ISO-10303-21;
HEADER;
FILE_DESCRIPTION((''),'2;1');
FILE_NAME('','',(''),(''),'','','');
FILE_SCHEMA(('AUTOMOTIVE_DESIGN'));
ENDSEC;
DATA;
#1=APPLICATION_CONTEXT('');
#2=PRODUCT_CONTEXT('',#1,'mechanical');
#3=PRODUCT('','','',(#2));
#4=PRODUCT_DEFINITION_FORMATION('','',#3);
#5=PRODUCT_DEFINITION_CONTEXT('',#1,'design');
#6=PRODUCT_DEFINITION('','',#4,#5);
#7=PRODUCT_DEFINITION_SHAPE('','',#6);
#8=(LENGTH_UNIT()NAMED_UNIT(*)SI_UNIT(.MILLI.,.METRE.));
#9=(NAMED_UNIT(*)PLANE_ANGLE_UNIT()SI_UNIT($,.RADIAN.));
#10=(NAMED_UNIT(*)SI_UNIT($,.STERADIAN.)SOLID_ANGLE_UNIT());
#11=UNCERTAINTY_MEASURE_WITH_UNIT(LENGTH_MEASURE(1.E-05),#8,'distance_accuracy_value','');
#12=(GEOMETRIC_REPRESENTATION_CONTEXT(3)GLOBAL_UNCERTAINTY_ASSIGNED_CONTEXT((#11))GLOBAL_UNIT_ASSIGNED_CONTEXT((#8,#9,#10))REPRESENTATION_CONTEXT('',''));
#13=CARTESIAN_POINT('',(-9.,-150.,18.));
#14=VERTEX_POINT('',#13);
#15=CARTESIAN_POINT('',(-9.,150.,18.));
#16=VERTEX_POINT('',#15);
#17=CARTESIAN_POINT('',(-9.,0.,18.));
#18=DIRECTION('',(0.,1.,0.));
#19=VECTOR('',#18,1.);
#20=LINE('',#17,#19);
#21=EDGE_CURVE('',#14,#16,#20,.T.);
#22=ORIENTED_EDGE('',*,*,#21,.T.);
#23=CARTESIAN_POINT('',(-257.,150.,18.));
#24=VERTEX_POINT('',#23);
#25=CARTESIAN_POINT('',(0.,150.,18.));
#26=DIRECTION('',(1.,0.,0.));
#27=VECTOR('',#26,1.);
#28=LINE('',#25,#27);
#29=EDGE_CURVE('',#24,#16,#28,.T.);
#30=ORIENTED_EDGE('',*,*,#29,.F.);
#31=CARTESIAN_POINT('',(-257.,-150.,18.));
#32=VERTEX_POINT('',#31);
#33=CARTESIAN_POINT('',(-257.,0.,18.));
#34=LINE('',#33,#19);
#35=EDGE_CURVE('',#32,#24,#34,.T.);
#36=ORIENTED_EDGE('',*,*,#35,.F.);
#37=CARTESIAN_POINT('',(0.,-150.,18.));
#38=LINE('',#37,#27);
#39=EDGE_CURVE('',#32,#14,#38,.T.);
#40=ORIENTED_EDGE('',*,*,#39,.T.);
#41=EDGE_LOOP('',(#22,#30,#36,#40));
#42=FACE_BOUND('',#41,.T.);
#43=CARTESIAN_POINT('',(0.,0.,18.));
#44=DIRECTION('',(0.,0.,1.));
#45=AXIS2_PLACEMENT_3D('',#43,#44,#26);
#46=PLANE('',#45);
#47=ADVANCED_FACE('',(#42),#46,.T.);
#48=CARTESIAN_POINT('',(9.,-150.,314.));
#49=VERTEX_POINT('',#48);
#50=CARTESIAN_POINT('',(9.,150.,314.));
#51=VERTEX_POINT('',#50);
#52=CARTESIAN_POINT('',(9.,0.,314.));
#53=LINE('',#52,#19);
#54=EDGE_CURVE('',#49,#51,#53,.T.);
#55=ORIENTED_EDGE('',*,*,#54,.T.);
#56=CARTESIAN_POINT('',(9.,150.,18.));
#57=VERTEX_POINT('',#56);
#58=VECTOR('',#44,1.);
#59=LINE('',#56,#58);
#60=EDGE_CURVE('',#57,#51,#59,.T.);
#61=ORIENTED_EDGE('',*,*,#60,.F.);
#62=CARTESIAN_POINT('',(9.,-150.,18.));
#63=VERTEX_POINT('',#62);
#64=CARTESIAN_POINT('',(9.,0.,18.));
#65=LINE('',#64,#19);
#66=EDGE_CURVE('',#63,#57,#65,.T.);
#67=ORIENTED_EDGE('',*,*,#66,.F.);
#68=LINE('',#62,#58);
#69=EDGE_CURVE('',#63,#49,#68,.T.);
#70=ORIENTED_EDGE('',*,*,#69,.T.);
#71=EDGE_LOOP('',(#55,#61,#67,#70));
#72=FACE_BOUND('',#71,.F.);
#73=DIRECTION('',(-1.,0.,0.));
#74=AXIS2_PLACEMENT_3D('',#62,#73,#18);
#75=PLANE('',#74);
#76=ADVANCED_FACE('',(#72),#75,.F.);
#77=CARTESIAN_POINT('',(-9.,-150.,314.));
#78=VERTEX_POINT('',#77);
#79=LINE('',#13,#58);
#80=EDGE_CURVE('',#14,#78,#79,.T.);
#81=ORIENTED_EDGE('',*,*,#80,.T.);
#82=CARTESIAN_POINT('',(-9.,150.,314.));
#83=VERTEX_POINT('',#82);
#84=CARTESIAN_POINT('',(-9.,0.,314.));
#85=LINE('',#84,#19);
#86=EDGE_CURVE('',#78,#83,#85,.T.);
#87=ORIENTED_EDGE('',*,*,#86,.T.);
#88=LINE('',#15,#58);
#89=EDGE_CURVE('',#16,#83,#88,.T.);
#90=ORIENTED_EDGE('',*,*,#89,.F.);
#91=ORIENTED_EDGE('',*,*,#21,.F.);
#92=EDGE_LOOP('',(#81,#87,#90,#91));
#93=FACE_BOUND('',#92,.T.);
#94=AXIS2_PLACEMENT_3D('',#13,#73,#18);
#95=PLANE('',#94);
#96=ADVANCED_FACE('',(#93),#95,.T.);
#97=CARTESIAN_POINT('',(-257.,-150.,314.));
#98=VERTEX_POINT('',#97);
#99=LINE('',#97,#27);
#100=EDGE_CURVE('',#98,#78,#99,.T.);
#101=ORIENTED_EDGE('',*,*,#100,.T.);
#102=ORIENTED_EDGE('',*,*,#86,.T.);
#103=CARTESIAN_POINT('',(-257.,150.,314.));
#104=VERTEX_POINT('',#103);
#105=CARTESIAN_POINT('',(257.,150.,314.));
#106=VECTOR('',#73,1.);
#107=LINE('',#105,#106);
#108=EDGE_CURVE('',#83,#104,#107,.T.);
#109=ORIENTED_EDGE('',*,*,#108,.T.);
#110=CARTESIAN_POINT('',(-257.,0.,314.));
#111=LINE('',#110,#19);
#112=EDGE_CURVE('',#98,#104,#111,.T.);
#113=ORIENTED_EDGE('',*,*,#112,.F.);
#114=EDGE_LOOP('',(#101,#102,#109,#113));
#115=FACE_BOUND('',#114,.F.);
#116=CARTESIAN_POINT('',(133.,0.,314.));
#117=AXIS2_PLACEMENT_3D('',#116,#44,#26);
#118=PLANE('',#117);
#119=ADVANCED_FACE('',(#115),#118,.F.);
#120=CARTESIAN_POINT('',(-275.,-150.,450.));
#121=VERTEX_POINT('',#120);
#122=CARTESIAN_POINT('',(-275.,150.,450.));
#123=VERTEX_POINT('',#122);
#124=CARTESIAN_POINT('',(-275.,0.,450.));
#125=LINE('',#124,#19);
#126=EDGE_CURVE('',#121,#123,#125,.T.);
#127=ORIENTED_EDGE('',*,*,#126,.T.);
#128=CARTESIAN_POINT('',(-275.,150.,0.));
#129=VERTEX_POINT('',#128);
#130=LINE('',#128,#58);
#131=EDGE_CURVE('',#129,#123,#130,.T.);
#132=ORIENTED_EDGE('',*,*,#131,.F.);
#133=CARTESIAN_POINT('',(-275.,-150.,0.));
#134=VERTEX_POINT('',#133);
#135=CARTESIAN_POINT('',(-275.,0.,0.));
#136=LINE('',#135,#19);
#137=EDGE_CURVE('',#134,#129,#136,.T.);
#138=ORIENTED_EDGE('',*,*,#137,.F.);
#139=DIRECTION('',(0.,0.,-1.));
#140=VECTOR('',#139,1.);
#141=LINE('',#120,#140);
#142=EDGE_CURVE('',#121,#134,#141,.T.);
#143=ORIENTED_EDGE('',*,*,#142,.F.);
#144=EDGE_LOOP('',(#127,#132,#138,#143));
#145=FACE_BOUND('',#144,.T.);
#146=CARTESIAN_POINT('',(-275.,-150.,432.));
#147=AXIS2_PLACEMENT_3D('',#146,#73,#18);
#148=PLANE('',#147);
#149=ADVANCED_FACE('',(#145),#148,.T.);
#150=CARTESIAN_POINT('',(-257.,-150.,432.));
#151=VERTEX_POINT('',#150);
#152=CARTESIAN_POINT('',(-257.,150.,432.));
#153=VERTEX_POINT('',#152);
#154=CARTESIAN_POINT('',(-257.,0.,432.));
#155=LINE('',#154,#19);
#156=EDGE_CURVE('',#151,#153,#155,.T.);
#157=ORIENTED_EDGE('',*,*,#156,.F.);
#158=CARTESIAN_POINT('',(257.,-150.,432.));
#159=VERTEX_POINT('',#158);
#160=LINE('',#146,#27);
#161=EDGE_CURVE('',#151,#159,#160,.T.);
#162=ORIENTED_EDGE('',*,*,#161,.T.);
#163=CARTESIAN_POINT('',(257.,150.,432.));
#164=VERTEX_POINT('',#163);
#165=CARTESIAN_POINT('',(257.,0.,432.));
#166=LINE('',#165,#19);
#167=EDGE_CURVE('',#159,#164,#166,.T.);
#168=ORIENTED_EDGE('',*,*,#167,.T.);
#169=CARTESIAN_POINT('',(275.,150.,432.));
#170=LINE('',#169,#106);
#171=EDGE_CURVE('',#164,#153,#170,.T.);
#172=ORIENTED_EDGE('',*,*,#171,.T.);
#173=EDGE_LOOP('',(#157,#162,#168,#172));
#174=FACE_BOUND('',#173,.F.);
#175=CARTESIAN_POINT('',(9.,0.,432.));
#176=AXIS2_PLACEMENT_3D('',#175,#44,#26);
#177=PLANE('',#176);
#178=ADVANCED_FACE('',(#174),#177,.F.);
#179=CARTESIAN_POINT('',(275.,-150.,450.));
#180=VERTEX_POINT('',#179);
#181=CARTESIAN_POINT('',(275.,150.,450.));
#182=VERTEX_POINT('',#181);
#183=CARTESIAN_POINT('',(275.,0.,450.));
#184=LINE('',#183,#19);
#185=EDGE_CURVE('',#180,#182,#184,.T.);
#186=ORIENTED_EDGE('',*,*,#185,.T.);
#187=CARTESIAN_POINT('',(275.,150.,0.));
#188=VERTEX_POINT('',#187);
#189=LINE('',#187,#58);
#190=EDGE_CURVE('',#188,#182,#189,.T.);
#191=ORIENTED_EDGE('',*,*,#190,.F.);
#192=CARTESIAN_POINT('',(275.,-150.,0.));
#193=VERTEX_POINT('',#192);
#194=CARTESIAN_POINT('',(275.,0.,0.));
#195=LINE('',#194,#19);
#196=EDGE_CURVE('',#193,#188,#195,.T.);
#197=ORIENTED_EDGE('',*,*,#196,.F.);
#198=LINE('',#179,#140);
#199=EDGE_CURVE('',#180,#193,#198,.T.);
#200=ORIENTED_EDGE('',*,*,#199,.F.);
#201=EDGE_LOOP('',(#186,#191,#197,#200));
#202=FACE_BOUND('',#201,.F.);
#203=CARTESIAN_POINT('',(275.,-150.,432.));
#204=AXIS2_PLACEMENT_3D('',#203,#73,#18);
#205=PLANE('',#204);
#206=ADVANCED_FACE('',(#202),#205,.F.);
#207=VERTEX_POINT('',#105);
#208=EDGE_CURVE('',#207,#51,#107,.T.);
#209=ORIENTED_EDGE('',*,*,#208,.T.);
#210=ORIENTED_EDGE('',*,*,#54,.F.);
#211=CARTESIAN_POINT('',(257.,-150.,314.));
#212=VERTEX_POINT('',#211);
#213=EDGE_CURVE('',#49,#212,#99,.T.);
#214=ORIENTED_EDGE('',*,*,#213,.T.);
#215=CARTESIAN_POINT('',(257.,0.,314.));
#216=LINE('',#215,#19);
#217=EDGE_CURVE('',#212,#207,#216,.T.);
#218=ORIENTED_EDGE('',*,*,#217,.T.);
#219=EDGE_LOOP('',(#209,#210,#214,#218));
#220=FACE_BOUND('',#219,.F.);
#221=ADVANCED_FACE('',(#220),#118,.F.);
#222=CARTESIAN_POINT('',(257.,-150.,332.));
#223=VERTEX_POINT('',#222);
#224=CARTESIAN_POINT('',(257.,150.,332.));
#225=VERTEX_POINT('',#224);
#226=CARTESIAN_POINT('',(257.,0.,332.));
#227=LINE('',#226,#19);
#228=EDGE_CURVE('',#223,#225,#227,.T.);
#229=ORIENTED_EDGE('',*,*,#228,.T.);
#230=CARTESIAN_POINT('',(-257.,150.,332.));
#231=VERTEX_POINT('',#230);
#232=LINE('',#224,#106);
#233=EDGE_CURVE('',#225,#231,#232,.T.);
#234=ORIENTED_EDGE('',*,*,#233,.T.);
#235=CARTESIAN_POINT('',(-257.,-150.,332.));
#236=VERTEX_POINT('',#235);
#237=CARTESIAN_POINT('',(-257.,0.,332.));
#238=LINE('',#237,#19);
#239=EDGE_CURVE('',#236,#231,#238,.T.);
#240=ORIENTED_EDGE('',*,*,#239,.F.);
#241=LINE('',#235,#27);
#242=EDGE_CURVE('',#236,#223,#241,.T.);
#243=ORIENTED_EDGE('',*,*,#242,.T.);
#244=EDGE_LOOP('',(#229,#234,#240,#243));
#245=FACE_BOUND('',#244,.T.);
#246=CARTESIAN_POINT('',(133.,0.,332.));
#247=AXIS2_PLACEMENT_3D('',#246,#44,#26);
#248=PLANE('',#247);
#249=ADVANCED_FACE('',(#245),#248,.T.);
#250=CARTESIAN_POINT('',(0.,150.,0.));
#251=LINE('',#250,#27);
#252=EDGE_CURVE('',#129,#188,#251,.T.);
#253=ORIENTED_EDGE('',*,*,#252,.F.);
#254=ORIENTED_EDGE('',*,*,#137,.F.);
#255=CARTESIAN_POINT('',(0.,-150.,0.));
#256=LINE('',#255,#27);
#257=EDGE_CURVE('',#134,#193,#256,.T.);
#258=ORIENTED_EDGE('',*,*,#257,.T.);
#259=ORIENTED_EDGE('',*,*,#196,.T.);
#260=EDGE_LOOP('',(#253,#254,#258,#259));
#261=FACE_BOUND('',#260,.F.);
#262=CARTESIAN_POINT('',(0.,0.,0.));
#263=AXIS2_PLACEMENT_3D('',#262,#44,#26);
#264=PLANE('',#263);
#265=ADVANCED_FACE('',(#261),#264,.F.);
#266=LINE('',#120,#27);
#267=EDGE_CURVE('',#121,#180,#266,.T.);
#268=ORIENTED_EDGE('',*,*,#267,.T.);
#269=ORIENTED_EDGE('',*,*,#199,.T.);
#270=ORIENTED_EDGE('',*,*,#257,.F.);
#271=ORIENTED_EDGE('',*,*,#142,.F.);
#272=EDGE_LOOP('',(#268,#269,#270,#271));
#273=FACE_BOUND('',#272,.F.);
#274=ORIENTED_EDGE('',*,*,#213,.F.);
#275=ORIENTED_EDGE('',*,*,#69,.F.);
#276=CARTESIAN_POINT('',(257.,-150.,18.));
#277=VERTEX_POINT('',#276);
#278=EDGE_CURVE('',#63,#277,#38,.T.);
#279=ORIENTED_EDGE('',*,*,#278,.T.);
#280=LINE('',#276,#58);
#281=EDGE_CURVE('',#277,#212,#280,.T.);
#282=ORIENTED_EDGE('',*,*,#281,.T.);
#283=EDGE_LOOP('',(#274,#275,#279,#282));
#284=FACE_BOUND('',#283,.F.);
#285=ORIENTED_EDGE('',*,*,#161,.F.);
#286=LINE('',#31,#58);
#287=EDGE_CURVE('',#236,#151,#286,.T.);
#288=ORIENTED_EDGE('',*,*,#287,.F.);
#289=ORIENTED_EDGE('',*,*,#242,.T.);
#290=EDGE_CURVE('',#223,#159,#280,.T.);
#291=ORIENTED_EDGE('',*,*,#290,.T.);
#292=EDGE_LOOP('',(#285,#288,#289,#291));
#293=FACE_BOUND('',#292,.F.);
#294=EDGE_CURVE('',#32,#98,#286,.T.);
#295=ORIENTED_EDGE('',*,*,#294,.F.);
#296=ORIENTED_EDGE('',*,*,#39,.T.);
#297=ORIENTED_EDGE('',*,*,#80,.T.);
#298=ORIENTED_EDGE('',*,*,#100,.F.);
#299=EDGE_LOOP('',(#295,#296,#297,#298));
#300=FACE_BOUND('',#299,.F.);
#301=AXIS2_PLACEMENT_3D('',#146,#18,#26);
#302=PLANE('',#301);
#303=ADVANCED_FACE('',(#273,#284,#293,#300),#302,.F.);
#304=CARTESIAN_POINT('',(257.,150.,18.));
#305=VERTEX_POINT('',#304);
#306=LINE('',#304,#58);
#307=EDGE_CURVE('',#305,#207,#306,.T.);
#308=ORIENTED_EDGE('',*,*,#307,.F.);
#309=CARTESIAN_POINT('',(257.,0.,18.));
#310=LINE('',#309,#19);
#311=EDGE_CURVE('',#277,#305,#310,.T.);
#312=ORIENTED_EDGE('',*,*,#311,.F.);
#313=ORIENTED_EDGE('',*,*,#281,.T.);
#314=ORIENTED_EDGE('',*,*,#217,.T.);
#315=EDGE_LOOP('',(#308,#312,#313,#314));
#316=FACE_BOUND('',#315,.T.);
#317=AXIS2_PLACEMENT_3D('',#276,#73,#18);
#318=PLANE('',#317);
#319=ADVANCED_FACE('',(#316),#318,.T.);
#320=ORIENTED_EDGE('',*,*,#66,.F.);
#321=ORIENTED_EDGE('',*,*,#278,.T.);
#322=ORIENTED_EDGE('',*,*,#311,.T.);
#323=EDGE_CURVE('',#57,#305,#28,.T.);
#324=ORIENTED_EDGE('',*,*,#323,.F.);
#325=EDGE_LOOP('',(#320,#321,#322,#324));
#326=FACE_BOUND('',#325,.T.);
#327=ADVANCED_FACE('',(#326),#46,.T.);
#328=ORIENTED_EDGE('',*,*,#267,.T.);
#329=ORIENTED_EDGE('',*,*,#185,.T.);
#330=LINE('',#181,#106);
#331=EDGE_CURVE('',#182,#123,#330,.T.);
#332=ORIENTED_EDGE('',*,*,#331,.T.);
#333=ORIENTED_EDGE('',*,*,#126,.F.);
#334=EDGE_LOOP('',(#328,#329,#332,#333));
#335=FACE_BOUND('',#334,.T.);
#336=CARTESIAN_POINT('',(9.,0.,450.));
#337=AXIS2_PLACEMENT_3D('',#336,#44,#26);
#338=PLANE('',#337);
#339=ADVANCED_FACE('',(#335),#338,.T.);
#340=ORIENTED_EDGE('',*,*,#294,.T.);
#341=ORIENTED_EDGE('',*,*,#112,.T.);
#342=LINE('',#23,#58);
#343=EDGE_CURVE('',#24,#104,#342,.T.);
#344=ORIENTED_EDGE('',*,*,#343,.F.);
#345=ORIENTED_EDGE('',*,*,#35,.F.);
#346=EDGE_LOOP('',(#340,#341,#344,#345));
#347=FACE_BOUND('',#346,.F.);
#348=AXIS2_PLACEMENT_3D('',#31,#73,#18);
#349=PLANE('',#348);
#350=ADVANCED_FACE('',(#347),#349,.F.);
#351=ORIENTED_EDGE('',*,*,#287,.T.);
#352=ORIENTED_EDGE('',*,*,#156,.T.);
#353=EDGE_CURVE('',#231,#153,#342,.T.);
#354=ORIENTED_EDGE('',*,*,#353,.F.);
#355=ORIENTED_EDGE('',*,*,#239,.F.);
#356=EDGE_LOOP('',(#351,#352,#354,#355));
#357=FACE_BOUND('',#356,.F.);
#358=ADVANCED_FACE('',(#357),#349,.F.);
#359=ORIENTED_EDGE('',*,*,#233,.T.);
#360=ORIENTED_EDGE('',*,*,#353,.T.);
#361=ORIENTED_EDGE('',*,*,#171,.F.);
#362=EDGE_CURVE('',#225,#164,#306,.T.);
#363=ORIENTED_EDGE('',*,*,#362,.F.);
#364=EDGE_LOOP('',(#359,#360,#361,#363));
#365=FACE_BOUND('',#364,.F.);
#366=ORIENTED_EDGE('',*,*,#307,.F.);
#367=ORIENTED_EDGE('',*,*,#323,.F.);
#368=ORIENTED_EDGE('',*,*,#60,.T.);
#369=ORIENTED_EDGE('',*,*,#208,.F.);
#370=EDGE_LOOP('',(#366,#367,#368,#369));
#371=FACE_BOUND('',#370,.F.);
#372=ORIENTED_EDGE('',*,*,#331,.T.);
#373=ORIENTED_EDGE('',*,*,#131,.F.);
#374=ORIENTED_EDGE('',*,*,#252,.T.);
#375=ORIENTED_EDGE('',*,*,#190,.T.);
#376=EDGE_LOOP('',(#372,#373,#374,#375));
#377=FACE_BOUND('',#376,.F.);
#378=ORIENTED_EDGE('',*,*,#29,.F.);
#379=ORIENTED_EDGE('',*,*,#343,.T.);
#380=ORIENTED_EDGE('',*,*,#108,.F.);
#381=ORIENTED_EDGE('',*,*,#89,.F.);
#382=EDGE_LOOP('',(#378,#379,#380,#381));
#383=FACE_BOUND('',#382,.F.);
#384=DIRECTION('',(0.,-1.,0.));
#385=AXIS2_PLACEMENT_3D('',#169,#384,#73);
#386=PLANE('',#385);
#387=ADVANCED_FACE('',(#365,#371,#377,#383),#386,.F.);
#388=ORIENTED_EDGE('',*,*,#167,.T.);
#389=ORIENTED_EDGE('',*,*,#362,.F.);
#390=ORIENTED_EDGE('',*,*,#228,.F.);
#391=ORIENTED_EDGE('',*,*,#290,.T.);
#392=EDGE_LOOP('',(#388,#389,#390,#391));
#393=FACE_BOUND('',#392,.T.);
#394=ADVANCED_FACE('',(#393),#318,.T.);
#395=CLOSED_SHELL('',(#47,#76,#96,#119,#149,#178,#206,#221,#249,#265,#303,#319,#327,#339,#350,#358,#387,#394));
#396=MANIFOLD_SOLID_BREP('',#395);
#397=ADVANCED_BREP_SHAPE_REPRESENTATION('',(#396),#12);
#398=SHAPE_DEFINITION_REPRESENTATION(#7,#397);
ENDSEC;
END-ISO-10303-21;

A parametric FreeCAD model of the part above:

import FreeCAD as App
import Part
import Sketcher

doc = App.newDocument("Part")
params = doc.addObject("Spreadsheet::Sheet", "Params")
for row, (alias, value) in enumerate([
    ("sketch1_width", "550 mm"),
    ("sketch1_height", "300 mm"),
    ("pad1_length", "18 mm"),
    ("sketch2_width", "18 mm"),
    ("sketch2_height", "300 mm"),
    ("pad2_length", "414 mm"),
    ("sketch3_width", "18 mm"),
    ("sketch3_height", "300 mm"),
    ("pad3_length", "296 mm"),
    ("sketch4_width", "514 mm"),
    ("sketch4_height", "300 mm"),
    ("pad4_length", "18 mm"),
    ("sketch5_width", "550 mm"),
    ("sketch5_height", "300 mm"),
    ("pad5_length", "18 mm"),
], start=1):
    params.set(f"A{row}", alias)
    params.set(f"B{row}", "=" + value)
    params.setAlias(f"B{row}", alias)

body = doc.addObject("PartDesign::Body", "Body")

sketch1 = body.newObject("Sketcher::SketchObject", "Sketch")
sketch1.AttachmentSupport = (doc.getObject("XY_Plane"), [""])
sketch1.MapMode = "FlatFace"
sketch1.addGeometry([
    Part.LineSegment(App.Vector(-275, 150, 0), App.Vector(-275, -150, 0)),
    Part.LineSegment(App.Vector(-275, -150, 0), App.Vector(275, -150, 0)),
    Part.LineSegment(App.Vector(275, -150, 0), App.Vector(275, 150, 0)),
    Part.LineSegment(App.Vector(275, 150, 0), App.Vector(-275, 150, 0)),
], False)
sketch1.addConstraint([
    Sketcher.Constraint("Coincident", 0, 2, 1, 1),
    Sketcher.Constraint("Coincident", 1, 2, 2, 1),
    Sketcher.Constraint("Coincident", 2, 2, 3, 1),
    Sketcher.Constraint("Coincident", 3, 2, 0, 1),
    Sketcher.Constraint("Vertical", 0),
    Sketcher.Constraint("Horizontal", 1),
    Sketcher.Constraint("Vertical", 2),
    Sketcher.Constraint("Horizontal", 3),
    Sketcher.Constraint("Symmetric", 0, 2, 2, 2, -1, 1),
    Sketcher.Constraint("DistanceX", 1, 1, 1, 2, 550.0),
    Sketcher.Constraint("DistanceY", 0, 2, 0, 1, 300.0),
])
sketch1.setExpression("Constraints[9]", "Params.sketch1_width")
sketch1.setExpression("Constraints[10]", "Params.sketch1_height")
pad1 = body.newObject("PartDesign::Pad", "Pad")
pad1.Profile = sketch1
pad1.setExpression("Length", "Params.pad1_length")

sketch2 = body.newObject("Sketcher::SketchObject", "Sketch001")
sketch2.AttachmentSupport = (doc.getObject("XY_Plane"), [""])
sketch2.MapMode = "FlatFace"
sketch2.AttachmentOffset = App.Placement(App.Vector(0, 0, 18), App.Rotation())
sketch2.addGeometry([
    Part.LineSegment(App.Vector(-275, 150, 0), App.Vector(-275, -150, 0)),
    Part.LineSegment(App.Vector(-275, -150, 0), App.Vector(-257, -150, 0)),
    Part.LineSegment(App.Vector(-257, -150, 0), App.Vector(-257, 150, 0)),
    Part.LineSegment(App.Vector(-257, 150, 0), App.Vector(-275, 150, 0)),
    Part.LineSegment(App.Vector(257, 150, 0), App.Vector(257, -150, 0)),
    Part.LineSegment(App.Vector(257, -150, 0), App.Vector(275, -150, 0)),
    Part.LineSegment(App.Vector(275, -150, 0), App.Vector(275, 150, 0)),
    Part.LineSegment(App.Vector(275, 150, 0), App.Vector(257, 150, 0)),
], False)
sketch2.addConstraint([
    Sketcher.Constraint("Coincident", 0, 2, 1, 1),
    Sketcher.Constraint("Coincident", 1, 2, 2, 1),
    Sketcher.Constraint("Coincident", 2, 2, 3, 1),
    Sketcher.Constraint("Coincident", 3, 2, 0, 1),
    Sketcher.Constraint("Coincident", 4, 2, 5, 1),
    Sketcher.Constraint("Coincident", 5, 2, 6, 1),
    Sketcher.Constraint("Coincident", 6, 2, 7, 1),
    Sketcher.Constraint("Coincident", 7, 2, 4, 1),
    Sketcher.Constraint("Vertical", 0),
    Sketcher.Constraint("Horizontal", 1),
    Sketcher.Constraint("Vertical", 2),
    Sketcher.Constraint("Horizontal", 3),
    Sketcher.Constraint("Vertical", 4),
    Sketcher.Constraint("Horizontal", 5),
    Sketcher.Constraint("Vertical", 6),
    Sketcher.Constraint("Horizontal", 7),
    Sketcher.Constraint("Symmetric", 2, 2, 4, 2, -1, 1),
    Sketcher.Constraint("Symmetric", 0, 2, 6, 2, -1, 1),
    Sketcher.Constraint("Horizontal", 1, 2, 4, 2),
    Sketcher.Constraint("DistanceX", 1, 1, 1, 2, 18.0),
    Sketcher.Constraint("DistanceY", 0, 2, 0, 1, 300.0),
    Sketcher.Constraint("DistanceX", 0, 2, -1, 1, 275.0),
])
sketch2.setExpression("Constraints[19]", "Params.sketch2_width")
sketch2.setExpression("Constraints[20]", "Params.sketch2_height")
pad2 = body.newObject("PartDesign::Pad", "Pad001")
pad2.Profile = sketch2
pad2.setExpression("Length", "Params.pad2_length")

sketch3 = body.newObject("Sketcher::SketchObject", "Sketch002")
sketch3.AttachmentSupport = (doc.getObject("XY_Plane"), [""])
sketch3.MapMode = "FlatFace"
sketch3.AttachmentOffset = App.Placement(App.Vector(0, 0, 18), App.Rotation())
sketch3.addGeometry([
    Part.LineSegment(App.Vector(-9, 150, 0), App.Vector(-9, -150, 0)),
    Part.LineSegment(App.Vector(-9, -150, 0), App.Vector(9, -150, 0)),
    Part.LineSegment(App.Vector(9, -150, 0), App.Vector(9, 150, 0)),
    Part.LineSegment(App.Vector(9, 150, 0), App.Vector(-9, 150, 0)),
], False)
sketch3.addConstraint([
    Sketcher.Constraint("Coincident", 0, 2, 1, 1),
    Sketcher.Constraint("Coincident", 1, 2, 2, 1),
    Sketcher.Constraint("Coincident", 2, 2, 3, 1),
    Sketcher.Constraint("Coincident", 3, 2, 0, 1),
    Sketcher.Constraint("Vertical", 0),
    Sketcher.Constraint("Horizontal", 1),
    Sketcher.Constraint("Vertical", 2),
    Sketcher.Constraint("Horizontal", 3),
    Sketcher.Constraint("Symmetric", 0, 2, 2, 2, -1, 1),
    Sketcher.Constraint("DistanceX", 1, 1, 1, 2, 18.0),
    Sketcher.Constraint("DistanceY", 0, 2, 0, 1, 300.0),
])
sketch3.setExpression("Constraints[9]", "Params.sketch3_width")
sketch3.setExpression("Constraints[10]", "Params.sketch3_height")
pad3 = body.newObject("PartDesign::Pad", "Pad002")
pad3.Profile = sketch3
pad3.setExpression("Length", "Params.pad3_length")

sketch4 = body.newObject("Sketcher::SketchObject", "Sketch003")
sketch4.AttachmentSupport = (doc.getObject("XY_Plane"), [""])
sketch4.MapMode = "FlatFace"
sketch4.AttachmentOffset = App.Placement(App.Vector(0, 0, 314), App.Rotation())
sketch4.addGeometry([
    Part.LineSegment(App.Vector(257, -150, 0), App.Vector(257, 150, 0)),
    Part.LineSegment(App.Vector(257, 150, 0), App.Vector(-257, 150, 0)),
    Part.LineSegment(App.Vector(-257, 150, 0), App.Vector(-257, -150, 0)),
    Part.LineSegment(App.Vector(-257, -150, 0), App.Vector(257, -150, 0)),
], False)
sketch4.addConstraint([
    Sketcher.Constraint("Coincident", 0, 2, 1, 1),
    Sketcher.Constraint("Coincident", 1, 2, 2, 1),
    Sketcher.Constraint("Coincident", 2, 2, 3, 1),
    Sketcher.Constraint("Coincident", 3, 2, 0, 1),
    Sketcher.Constraint("Vertical", 0),
    Sketcher.Constraint("Horizontal", 1),
    Sketcher.Constraint("Vertical", 2),
    Sketcher.Constraint("Horizontal", 3),
    Sketcher.Constraint("Symmetric", 0, 2, 2, 2, -1, 1),
    Sketcher.Constraint("DistanceX", 1, 2, 1, 1, 514.0),
    Sketcher.Constraint("DistanceY", 0, 1, 0, 2, 300.0),
])
sketch4.setExpression("Constraints[9]", "Params.sketch4_width")
sketch4.setExpression("Constraints[10]", "Params.sketch4_height")
pad4 = body.newObject("PartDesign::Pad", "Pad003")
pad4.Profile = sketch4
pad4.setExpression("Length", "Params.pad4_length")

sketch5 = body.newObject("Sketcher::SketchObject", "Sketch004")
sketch5.AttachmentSupport = (doc.getObject("XY_Plane"), [""])
sketch5.MapMode = "FlatFace"
sketch5.AttachmentOffset = App.Placement(App.Vector(0, 0, 432), App.Rotation())
sketch5.addGeometry([
    Part.LineSegment(App.Vector(275, -150, 0), App.Vector(275, 150, 0)),
    Part.LineSegment(App.Vector(275, 150, 0), App.Vector(-275, 150, 0)),
    Part.LineSegment(App.Vector(-275, 150, 0), App.Vector(-275, -150, 0)),
    Part.LineSegment(App.Vector(-275, -150, 0), App.Vector(275, -150, 0)),
], False)
sketch5.addConstraint([
    Sketcher.Constraint("Coincident", 0, 2, 1, 1),
    Sketcher.Constraint("Coincident", 1, 2, 2, 1),
    Sketcher.Constraint("Coincident", 2, 2, 3, 1),
    Sketcher.Constraint("Coincident", 3, 2, 0, 1),
    Sketcher.Constraint("Vertical", 0),
    Sketcher.Constraint("Horizontal", 1),
    Sketcher.Constraint("Vertical", 2),
    Sketcher.Constraint("Horizontal", 3),
    Sketcher.Constraint("Symmetric", 0, 2, 2, 2, -1, 1),
    Sketcher.Constraint("DistanceX", 1, 2, 1, 1, 550.0),
    Sketcher.Constraint("DistanceY", 0, 1, 0, 2, 300.0),
])
sketch5.setExpression("Constraints[9]", "Params.sketch5_width")
sketch5.setExpression("Constraints[10]", "Params.sketch5_height")
pad5 = body.newObject("PartDesign::Pad", "Pad004")
pad5.Profile = sketch5
pad5.setExpression("Length", "Params.pad5_length")

doc.recompute()
